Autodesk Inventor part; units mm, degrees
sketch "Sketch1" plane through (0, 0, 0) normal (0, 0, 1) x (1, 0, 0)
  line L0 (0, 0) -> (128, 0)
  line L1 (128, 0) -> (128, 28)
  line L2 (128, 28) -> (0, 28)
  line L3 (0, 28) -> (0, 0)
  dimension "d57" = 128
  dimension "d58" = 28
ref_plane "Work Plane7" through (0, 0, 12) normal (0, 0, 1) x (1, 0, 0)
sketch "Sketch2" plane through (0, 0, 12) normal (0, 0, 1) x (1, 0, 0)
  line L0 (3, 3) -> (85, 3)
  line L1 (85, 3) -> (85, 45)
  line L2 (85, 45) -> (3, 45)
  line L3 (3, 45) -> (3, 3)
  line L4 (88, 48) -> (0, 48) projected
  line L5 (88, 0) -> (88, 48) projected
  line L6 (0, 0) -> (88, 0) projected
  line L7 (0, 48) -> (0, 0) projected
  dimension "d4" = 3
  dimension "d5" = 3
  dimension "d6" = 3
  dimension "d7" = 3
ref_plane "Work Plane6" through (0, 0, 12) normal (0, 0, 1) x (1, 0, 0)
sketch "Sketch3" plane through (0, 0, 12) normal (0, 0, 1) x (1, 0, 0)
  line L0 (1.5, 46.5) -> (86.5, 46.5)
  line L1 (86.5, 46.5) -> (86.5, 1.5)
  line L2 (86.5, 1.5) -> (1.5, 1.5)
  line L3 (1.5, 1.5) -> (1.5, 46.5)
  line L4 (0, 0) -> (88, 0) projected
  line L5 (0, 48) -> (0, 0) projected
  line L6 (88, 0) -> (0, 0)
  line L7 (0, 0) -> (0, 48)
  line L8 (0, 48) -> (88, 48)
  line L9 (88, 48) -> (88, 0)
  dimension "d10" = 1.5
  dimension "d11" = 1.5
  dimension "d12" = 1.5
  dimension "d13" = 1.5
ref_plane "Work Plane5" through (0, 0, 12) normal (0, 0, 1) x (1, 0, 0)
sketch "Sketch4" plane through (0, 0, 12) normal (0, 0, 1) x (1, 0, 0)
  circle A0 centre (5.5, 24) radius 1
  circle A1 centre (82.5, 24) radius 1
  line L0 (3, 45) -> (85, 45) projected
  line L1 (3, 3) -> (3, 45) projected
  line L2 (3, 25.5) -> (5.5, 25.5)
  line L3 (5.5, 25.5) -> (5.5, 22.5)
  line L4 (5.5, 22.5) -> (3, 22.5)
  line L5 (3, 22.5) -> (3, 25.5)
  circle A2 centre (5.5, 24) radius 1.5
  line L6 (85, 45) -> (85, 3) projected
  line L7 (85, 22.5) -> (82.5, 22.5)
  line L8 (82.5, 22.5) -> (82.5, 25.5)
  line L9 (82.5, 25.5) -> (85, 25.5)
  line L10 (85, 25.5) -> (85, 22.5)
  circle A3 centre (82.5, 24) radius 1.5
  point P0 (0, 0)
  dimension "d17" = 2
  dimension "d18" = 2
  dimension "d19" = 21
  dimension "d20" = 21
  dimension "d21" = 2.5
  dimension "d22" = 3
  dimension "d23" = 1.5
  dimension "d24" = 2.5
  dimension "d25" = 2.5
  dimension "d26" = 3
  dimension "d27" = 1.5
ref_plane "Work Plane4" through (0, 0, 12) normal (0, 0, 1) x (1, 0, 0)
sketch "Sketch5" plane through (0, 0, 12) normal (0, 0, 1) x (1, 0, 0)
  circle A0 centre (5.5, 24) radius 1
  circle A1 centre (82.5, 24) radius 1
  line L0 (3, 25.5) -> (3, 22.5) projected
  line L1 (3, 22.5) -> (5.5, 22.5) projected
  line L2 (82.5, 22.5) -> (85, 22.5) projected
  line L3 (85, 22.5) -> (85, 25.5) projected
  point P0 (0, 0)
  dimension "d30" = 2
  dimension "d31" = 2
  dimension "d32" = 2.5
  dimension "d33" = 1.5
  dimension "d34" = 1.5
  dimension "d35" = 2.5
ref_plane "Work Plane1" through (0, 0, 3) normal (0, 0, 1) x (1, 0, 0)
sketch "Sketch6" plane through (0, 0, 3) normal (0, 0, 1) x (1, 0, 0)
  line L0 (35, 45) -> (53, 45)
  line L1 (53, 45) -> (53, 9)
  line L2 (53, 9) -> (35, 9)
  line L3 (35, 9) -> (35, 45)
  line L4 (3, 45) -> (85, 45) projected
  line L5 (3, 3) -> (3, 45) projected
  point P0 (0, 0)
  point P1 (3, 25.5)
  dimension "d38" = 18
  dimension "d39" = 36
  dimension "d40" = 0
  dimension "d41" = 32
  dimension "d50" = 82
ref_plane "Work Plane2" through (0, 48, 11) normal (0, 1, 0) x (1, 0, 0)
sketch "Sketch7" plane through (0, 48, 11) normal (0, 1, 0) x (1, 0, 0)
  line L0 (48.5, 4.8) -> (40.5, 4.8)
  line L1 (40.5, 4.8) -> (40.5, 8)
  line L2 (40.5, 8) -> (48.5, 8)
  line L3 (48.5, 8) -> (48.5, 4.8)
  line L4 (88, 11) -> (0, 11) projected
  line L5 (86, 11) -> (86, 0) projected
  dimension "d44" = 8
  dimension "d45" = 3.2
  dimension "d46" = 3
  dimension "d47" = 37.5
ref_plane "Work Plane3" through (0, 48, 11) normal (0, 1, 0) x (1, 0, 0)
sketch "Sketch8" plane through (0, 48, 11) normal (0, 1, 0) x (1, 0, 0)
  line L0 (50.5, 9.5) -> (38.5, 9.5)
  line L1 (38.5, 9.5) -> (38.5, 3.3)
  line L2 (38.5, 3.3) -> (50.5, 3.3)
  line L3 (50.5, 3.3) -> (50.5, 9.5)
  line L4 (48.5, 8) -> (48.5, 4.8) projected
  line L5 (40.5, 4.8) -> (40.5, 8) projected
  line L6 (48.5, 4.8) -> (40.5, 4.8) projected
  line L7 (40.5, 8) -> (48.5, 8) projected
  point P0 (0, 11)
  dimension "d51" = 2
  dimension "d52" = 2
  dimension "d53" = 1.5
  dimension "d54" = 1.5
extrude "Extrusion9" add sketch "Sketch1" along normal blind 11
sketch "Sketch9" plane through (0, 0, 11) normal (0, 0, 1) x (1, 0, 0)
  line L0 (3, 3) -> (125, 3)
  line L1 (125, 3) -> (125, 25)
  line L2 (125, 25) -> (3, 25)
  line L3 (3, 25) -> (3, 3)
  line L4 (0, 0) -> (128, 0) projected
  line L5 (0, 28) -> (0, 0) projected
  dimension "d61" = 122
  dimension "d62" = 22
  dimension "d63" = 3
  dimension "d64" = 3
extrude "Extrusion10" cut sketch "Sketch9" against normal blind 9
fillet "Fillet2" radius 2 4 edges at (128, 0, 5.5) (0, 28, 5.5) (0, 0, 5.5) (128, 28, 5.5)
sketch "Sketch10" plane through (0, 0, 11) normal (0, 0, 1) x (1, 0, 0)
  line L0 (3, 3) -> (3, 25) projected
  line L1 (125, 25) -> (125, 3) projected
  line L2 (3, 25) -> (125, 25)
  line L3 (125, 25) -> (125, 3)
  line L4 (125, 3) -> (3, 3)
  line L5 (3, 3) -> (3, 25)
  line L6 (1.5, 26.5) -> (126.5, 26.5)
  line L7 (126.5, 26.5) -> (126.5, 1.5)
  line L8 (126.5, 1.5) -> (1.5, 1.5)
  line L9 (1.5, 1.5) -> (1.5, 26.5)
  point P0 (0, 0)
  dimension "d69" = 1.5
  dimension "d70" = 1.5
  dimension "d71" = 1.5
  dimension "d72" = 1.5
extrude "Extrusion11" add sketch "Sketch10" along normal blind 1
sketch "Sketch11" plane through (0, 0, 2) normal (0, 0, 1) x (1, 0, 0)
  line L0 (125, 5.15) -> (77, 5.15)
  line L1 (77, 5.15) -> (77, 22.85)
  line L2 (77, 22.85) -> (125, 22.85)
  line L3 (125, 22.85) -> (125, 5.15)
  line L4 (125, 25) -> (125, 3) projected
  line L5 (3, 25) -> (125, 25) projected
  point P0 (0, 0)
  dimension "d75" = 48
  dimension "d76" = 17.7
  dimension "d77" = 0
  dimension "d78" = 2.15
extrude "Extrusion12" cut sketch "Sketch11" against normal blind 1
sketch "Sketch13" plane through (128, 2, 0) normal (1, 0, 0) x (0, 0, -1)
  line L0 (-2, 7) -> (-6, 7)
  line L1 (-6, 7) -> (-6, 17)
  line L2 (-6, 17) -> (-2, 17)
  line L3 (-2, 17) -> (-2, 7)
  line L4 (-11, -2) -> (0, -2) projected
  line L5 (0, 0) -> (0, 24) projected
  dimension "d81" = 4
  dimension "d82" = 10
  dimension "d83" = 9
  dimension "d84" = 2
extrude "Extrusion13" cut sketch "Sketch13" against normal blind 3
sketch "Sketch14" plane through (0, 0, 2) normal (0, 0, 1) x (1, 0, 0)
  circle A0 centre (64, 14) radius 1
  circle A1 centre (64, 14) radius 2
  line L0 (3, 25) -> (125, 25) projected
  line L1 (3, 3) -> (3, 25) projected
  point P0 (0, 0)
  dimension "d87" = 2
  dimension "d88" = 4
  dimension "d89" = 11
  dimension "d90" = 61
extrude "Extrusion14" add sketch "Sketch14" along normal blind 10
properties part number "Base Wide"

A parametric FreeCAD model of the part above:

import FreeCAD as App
import Part
import Sketcher
from FreeCAD import Vector
Q = App.Units.Quantity


def edges_at(feature, points):
    """Names of the edges that pass closest to the given points."""
    edges = feature.Shape.Edges
    near = lambda p: min(range(len(edges)), key=lambda i: edges[i].distToShape(Part.Vertex(*p))[0])
    return sorted({f"Edge{near(p) + 1}" for p in points})

doc = App.newDocument("Part")
body = doc.addObject("PartDesign::Body", "Body")

# Sketch on XY plane
sketch1 = doc.addObject("Sketcher::SketchObject", "Sketch")
body.addObject(sketch1)
sketch1.AttachmentSupport = (doc.XY_Plane, [""])
sketch1.MapMode = "FlatFace"
sketch1.addGeometry(Part.LineSegment(Vector(0, 28, 0), Vector(0, 0, 0)), False)
sketch1.addGeometry(Part.LineSegment(Vector(0, 0, 0), Vector(128, 0, 0)), False)
sketch1.addGeometry(Part.LineSegment(Vector(128, 0, 0), Vector(128, 28, 0)), False)
sketch1.addGeometry(Part.LineSegment(Vector(128, 28, 0), Vector(0, 28, 0)), False)
sketch1.addConstraint(Sketcher.Constraint("Coincident", 0, 2, 1, 1))
sketch1.addConstraint(Sketcher.Constraint("Coincident", 1, 2, 2, 1))
sketch1.addConstraint(Sketcher.Constraint("Coincident", 2, 2, 3, 1))
sketch1.addConstraint(Sketcher.Constraint("Coincident", 3, 2, 0, 1))
sketch1.addConstraint(Sketcher.Constraint("Vertical", 0))
sketch1.addConstraint(Sketcher.Constraint("Horizontal", 1))
sketch1.addConstraint(Sketcher.Constraint("Vertical", 2))
sketch1.addConstraint(Sketcher.Constraint("Horizontal", 3))
sketch1.addConstraint(Sketcher.Constraint("Coincident", 0, 2, -1, 1))
sketch1.addConstraint(Sketcher.Constraint("DistanceX", 1, 1, 1, 2, Q("128 mm")))
sketch1.addConstraint(Sketcher.Constraint("DistanceY", 0, 2, 0, 1, Q("28 mm")))
pad1 = doc.addObject("PartDesign::Pad", "Pad")
body.addObject(pad1)
pad1.Profile = sketch1
pad1.Length = 11

# Sketch on XY plane
sketch2 = doc.addObject("Sketcher::SketchObject", "Sketch001")
body.addObject(sketch2)
sketch2.AttachmentSupport = (doc.XY_Plane, [""])
sketch2.MapMode = "FlatFace"
sketch2.AttachmentOffset = App.Placement(Vector(0, 0, 11), App.Rotation())
sketch2.addGeometry(Part.LineSegment(Vector(3, 25, 0), Vector(3, 3, 0)), False)
sketch2.addGeometry(Part.LineSegment(Vector(3, 3, 0), Vector(125, 3, 0)), False)
sketch2.addGeometry(Part.LineSegment(Vector(125, 3, 0), Vector(125, 25, 0)), False)
sketch2.addGeometry(Part.LineSegment(Vector(125, 25, 0), Vector(3, 25, 0)), False)
sketch2.addConstraint(Sketcher.Constraint("Coincident", 0, 2, 1, 1))
sketch2.addConstraint(Sketcher.Constraint("Coincident", 1, 2, 2, 1))
sketch2.addConstraint(Sketcher.Constraint("Coincident", 2, 2, 3, 1))
sketch2.addConstraint(Sketcher.Constraint("Coincident", 3, 2, 0, 1))
sketch2.addConstraint(Sketcher.Constraint("Vertical", 0))
sketch2.addConstraint(Sketcher.Constraint("Horizontal", 1))
sketch2.addConstraint(Sketcher.Constraint("Vertical", 2))
sketch2.addConstraint(Sketcher.Constraint("Horizontal", 3))
sketch2.addConstraint(Sketcher.Constraint("DistanceX", 1, 1, 1, 2, Q("122 mm")))
sketch2.addConstraint(Sketcher.Constraint("DistanceY", 0, 2, 0, 1, Q("22 mm")))
sketch2.addConstraint(Sketcher.Constraint("DistanceX", -1, 1, 0, 2, Q("3 mm")))
sketch2.addConstraint(Sketcher.Constraint("DistanceY", -1, 1, 0, 2, Q("3 mm")))
pocket1 = doc.addObject("PartDesign::Pocket", "Pocket")
body.addObject(pocket1)
pocket1.Profile = sketch2
pocket1.Length = 9
doc.recompute()

fillet = doc.addObject("PartDesign::Fillet", "Fillet")
body.addObject(fillet)
fillet.Base = (pocket1, edges_at(pocket1, [
    (128, 0, 5.5),
    (0, 28, 5.5),
    (0, 0, 5.5),
    (128, 28, 5.5),
]))
fillet.Radius = 2

# Sketch on XY plane
sketch3 = doc.addObject("Sketcher::SketchObject", "Sketch002")
body.addObject(sketch3)
sketch3.AttachmentSupport = (doc.XY_Plane, [""])
sketch3.MapMode = "FlatFace"
sketch3.AttachmentOffset = App.Placement(Vector(0, 0, 11), App.Rotation())
sketch3.addGeometry(Part.LineSegment(Vector(126, 26, 0), Vector(2, 26, 0)), False)
sketch3.addGeometry(Part.LineSegment(Vector(2, 26, 0), Vector(2, 2, 0)), False)
sketch3.addGeometry(Part.LineSegment(Vector(2, 2, 0), Vector(126, 2, 0)), False)
sketch3.addGeometry(Part.LineSegment(Vector(126, 2, 0), Vector(126, 26, 0)), False)
sketch3.addGeometry(Part.LineSegment(Vector(125, 3, 0), Vector(3, 3, 0)), False)
sketch3.addGeometry(Part.LineSegment(Vector(3, 3, 0), Vector(3, 25, 0)), False)
sketch3.addGeometry(Part.LineSegment(Vector(3, 25, 0), Vector(125, 25, 0)), False)
sketch3.addGeometry(Part.LineSegment(Vector(125, 25, 0), Vector(125, 3, 0)), False)
sketch3.addConstraint(Sketcher.Constraint("Coincident", 0, 2, 1, 1))
sketch3.addConstraint(Sketcher.Constraint("Coincident", 1, 2, 2, 1))
sketch3.addConstraint(Sketcher.Constraint("Coincident", 2, 2, 3, 1))
sketch3.addConstraint(Sketcher.Constraint("Coincident", 3, 2, 0, 1))
sketch3.addConstraint(Sketcher.Constraint("Coincident", 4, 2, 5, 1))
sketch3.addConstraint(Sketcher.Constraint("Coincident", 5, 2, 6, 1))
sketch3.addConstraint(Sketcher.Constraint("Coincident", 6, 2, 7, 1))
sketch3.addConstraint(Sketcher.Constraint("Coincident", 7, 2, 4, 1))
sketch3.addConstraint(Sketcher.Constraint("Horizontal", 0))
sketch3.addConstraint(Sketcher.Constraint("Vertical", 1))
sketch3.addConstraint(Sketcher.Constraint("Horizontal", 2))
sketch3.addConstraint(Sketcher.Constraint("Vertical", 3))
sketch3.addConstraint(Sketcher.Constraint("Horizontal", 4))
sketch3.addConstraint(Sketcher.Constraint("Vertical", 5))
sketch3.addConstraint(Sketcher.Constraint("Horizontal", 6))
sketch3.addConstraint(Sketcher.Constraint("Vertical", 7))
sketch3.addConstraint(Sketcher.Constraint("DistanceX", -1, 1, 0, 2, Q("1.5 mm")))
sketch3.addConstraint(Sketcher.Constraint("DistanceY", -1, 1, 1, 2, Q("1.5 mm")))
sketch3.addConstraint(Sketcher.Constraint("DistanceX", 1, 2, 4, 2, Q("1.5 mm")))
sketch3.addConstraint(Sketcher.Constraint("DistanceY", 1, 2, 4, 2, Q("1.5 mm")))
sketch3.addConstraint(Sketcher.Constraint("DistanceY", 5, 2, 0, 2, Q("1.5 mm")))
sketch3.addConstraint(Sketcher.Constraint("DistanceX", 6, 2, 3, 2, Q("1.5 mm")))
sketch3.addConstraint(Sketcher.Constraint("DistanceX", 0, 2, 0, 1, Q("125 mm")))
sketch3.addConstraint(Sketcher.Constraint("DistanceY", 1, 2, 1, 1, Q("25 mm")))
pad2 = doc.addObject("PartDesign::Pad", "Pad001")
body.addObject(pad2)
pad2.Profile = sketch3
pad2.Length = 1

# Sketch on XY plane
sketch4 = doc.addObject("Sketcher::SketchObject", "Sketch003")
body.addObject(sketch4)
sketch4.AttachmentSupport = (doc.XY_Plane, [""])
sketch4.MapMode = "FlatFace"
sketch4.AttachmentOffset = App.Placement(Vector(0, 0, 2), App.Rotation())
sketch4.addGeometry(Part.LineSegment(Vector(77, 5, 0), Vector(125, 5, 0)), False)
sketch4.addGeometry(Part.LineSegment(Vector(125, 5, 0), Vector(125, 23, 0)), False)
sketch4.addGeometry(Part.LineSegment(Vector(125, 23, 0), Vector(77, 23, 0)), False)
sketch4.addGeometry(Part.LineSegment(Vector(77, 23, 0), Vector(77, 5, 0)), False)
sketch4.addConstraint(Sketcher.Constraint("Coincident", 0, 2, 1, 1))
sketch4.addConstraint(Sketcher.Constraint("Coincident", 1, 2, 2, 1))
sketch4.addConstraint(Sketcher.Constraint("Coincident", 2, 2, 3, 1))
sketch4.addConstraint(Sketcher.Constraint("Coincident", 3, 2, 0, 1))
sketch4.addConstraint(Sketcher.Constraint("Horizontal", 0))
sketch4.addConstraint(Sketcher.Constraint("Vertical", 1))
sketch4.addConstraint(Sketcher.Constraint("Horizontal", 2))
sketch4.addConstraint(Sketcher.Constraint("Vertical", 3))
sketch4.addConstraint(Sketcher.Constraint("DistanceX", 0, 1, 0, 2, Q("48 mm")))
sketch4.addConstraint(Sketcher.Constraint("DistanceY", 1, 1, 1, 2, Q("17.7 mm")))
sketch4.addConstraint(Sketcher.Constraint("DistanceX", -1, 1, 0, 2, Q("125 mm")))
sketch4.addConstraint(Sketcher.Constraint("DistanceY", -1, 1, 0, 2, Q("5.15 mm")))
pocket2 = doc.addObject("PartDesign::Pocket", "Pocket001")
body.addObject(pocket2)
pocket2.Profile = sketch4
pocket2.Length = 1

# Sketch on YZ plane
sketch5 = doc.addObject("Sketcher::SketchObject", "Sketch004")
body.addObject(sketch5)
sketch5.AttachmentSupport = (doc.YZ_Plane, [""])
sketch5.MapMode = "FlatFace"
sketch5.AttachmentOffset = App.Placement(Vector(0, 0, 128), App.Rotation())
sketch5.addGeometry(Part.LineSegment(Vector(9, 6, 0), Vector(9, 2, 0)), False)
sketch5.addGeometry(Part.LineSegment(Vector(9, 2, 0), Vector(19, 2, 0)), False)
sketch5.addGeometry(Part.LineSegment(Vector(19, 2, 0), Vector(19, 6, 0)), False)
sketch5.addGeometry(Part.LineSegment(Vector(19, 6, 0), Vector(9, 6, 0)), False)
sketch5.addConstraint(Sketcher.Constraint("Coincident", 0, 2, 1, 1))
sketch5.addConstraint(Sketcher.Constraint("Coincident", 1, 2, 2, 1))
sketch5.addConstraint(Sketcher.Constraint("Coincident", 2, 2, 3, 1))
sketch5.addConstraint(Sketcher.Constraint("Coincident", 3, 2, 0, 1))
sketch5.addConstraint(Sketcher.Constraint("Vertical", 0))
sketch5.addConstraint(Sketcher.Constraint("Horizontal", 1))
sketch5.addConstraint(Sketcher.Constraint("Vertical", 2))
sketch5.addConstraint(Sketcher.Constraint("Horizontal", 3))
sketch5.addConstraint(Sketcher.Constraint("DistanceX", 1, 1, 1, 2, Q("10 mm")))
sketch5.addConstraint(Sketcher.Constraint("DistanceY", 0, 2, 0, 1, Q("4 mm")))
sketch5.addConstraint(Sketcher.Constraint("DistanceX", -1, 1, 0, 2, Q("9 mm")))
sketch5.addConstraint(Sketcher.Constraint("DistanceY", -1, 1, 0, 2, Q("2 mm")))
pocket3 = doc.addObject("PartDesign::Pocket", "Pocket002")
body.addObject(pocket3)
pocket3.Profile = sketch5
pocket3.Length = 3

# Sketch on XY plane
sketch6 = doc.addObject("Sketcher::SketchObject", "Sketch005")
body.addObject(sketch6)
sketch6.AttachmentSupport = (doc.XY_Plane, [""])
sketch6.MapMode = "FlatFace"
sketch6.AttachmentOffset = App.Placement(Vector(0, 0, 2), App.Rotation())
sketch6.addGeometry(Part.Circle(Vector(64, 14, 0), Vector(0, 0, 1), 2), False)
sketch6.addGeometry(Part.Circle(Vector(64, 14, 0), Vector(0, 0, 1), 1), False)
sketch6.addConstraint(Sketcher.Constraint("Coincident", 1, 3, 0, 3))
sketch6.addConstraint(Sketcher.Constraint("Diameter", 0, Q("4 mm")))
sketch6.addConstraint(Sketcher.Constraint("Diameter", 1, Q("2 mm")))
sketch6.addConstraint(Sketcher.Constraint("DistanceX", -1, 1, 0, 3, Q("64 mm")))
sketch6.addConstraint(Sketcher.Constraint("DistanceY", -1, 1, 0, 3, Q("14 mm")))
pad3 = doc.addObject("PartDesign::Pad", "Pad002")
body.addObject(pad3)
pad3.Profile = sketch6
pad3.Length = 10

doc.recompute()
